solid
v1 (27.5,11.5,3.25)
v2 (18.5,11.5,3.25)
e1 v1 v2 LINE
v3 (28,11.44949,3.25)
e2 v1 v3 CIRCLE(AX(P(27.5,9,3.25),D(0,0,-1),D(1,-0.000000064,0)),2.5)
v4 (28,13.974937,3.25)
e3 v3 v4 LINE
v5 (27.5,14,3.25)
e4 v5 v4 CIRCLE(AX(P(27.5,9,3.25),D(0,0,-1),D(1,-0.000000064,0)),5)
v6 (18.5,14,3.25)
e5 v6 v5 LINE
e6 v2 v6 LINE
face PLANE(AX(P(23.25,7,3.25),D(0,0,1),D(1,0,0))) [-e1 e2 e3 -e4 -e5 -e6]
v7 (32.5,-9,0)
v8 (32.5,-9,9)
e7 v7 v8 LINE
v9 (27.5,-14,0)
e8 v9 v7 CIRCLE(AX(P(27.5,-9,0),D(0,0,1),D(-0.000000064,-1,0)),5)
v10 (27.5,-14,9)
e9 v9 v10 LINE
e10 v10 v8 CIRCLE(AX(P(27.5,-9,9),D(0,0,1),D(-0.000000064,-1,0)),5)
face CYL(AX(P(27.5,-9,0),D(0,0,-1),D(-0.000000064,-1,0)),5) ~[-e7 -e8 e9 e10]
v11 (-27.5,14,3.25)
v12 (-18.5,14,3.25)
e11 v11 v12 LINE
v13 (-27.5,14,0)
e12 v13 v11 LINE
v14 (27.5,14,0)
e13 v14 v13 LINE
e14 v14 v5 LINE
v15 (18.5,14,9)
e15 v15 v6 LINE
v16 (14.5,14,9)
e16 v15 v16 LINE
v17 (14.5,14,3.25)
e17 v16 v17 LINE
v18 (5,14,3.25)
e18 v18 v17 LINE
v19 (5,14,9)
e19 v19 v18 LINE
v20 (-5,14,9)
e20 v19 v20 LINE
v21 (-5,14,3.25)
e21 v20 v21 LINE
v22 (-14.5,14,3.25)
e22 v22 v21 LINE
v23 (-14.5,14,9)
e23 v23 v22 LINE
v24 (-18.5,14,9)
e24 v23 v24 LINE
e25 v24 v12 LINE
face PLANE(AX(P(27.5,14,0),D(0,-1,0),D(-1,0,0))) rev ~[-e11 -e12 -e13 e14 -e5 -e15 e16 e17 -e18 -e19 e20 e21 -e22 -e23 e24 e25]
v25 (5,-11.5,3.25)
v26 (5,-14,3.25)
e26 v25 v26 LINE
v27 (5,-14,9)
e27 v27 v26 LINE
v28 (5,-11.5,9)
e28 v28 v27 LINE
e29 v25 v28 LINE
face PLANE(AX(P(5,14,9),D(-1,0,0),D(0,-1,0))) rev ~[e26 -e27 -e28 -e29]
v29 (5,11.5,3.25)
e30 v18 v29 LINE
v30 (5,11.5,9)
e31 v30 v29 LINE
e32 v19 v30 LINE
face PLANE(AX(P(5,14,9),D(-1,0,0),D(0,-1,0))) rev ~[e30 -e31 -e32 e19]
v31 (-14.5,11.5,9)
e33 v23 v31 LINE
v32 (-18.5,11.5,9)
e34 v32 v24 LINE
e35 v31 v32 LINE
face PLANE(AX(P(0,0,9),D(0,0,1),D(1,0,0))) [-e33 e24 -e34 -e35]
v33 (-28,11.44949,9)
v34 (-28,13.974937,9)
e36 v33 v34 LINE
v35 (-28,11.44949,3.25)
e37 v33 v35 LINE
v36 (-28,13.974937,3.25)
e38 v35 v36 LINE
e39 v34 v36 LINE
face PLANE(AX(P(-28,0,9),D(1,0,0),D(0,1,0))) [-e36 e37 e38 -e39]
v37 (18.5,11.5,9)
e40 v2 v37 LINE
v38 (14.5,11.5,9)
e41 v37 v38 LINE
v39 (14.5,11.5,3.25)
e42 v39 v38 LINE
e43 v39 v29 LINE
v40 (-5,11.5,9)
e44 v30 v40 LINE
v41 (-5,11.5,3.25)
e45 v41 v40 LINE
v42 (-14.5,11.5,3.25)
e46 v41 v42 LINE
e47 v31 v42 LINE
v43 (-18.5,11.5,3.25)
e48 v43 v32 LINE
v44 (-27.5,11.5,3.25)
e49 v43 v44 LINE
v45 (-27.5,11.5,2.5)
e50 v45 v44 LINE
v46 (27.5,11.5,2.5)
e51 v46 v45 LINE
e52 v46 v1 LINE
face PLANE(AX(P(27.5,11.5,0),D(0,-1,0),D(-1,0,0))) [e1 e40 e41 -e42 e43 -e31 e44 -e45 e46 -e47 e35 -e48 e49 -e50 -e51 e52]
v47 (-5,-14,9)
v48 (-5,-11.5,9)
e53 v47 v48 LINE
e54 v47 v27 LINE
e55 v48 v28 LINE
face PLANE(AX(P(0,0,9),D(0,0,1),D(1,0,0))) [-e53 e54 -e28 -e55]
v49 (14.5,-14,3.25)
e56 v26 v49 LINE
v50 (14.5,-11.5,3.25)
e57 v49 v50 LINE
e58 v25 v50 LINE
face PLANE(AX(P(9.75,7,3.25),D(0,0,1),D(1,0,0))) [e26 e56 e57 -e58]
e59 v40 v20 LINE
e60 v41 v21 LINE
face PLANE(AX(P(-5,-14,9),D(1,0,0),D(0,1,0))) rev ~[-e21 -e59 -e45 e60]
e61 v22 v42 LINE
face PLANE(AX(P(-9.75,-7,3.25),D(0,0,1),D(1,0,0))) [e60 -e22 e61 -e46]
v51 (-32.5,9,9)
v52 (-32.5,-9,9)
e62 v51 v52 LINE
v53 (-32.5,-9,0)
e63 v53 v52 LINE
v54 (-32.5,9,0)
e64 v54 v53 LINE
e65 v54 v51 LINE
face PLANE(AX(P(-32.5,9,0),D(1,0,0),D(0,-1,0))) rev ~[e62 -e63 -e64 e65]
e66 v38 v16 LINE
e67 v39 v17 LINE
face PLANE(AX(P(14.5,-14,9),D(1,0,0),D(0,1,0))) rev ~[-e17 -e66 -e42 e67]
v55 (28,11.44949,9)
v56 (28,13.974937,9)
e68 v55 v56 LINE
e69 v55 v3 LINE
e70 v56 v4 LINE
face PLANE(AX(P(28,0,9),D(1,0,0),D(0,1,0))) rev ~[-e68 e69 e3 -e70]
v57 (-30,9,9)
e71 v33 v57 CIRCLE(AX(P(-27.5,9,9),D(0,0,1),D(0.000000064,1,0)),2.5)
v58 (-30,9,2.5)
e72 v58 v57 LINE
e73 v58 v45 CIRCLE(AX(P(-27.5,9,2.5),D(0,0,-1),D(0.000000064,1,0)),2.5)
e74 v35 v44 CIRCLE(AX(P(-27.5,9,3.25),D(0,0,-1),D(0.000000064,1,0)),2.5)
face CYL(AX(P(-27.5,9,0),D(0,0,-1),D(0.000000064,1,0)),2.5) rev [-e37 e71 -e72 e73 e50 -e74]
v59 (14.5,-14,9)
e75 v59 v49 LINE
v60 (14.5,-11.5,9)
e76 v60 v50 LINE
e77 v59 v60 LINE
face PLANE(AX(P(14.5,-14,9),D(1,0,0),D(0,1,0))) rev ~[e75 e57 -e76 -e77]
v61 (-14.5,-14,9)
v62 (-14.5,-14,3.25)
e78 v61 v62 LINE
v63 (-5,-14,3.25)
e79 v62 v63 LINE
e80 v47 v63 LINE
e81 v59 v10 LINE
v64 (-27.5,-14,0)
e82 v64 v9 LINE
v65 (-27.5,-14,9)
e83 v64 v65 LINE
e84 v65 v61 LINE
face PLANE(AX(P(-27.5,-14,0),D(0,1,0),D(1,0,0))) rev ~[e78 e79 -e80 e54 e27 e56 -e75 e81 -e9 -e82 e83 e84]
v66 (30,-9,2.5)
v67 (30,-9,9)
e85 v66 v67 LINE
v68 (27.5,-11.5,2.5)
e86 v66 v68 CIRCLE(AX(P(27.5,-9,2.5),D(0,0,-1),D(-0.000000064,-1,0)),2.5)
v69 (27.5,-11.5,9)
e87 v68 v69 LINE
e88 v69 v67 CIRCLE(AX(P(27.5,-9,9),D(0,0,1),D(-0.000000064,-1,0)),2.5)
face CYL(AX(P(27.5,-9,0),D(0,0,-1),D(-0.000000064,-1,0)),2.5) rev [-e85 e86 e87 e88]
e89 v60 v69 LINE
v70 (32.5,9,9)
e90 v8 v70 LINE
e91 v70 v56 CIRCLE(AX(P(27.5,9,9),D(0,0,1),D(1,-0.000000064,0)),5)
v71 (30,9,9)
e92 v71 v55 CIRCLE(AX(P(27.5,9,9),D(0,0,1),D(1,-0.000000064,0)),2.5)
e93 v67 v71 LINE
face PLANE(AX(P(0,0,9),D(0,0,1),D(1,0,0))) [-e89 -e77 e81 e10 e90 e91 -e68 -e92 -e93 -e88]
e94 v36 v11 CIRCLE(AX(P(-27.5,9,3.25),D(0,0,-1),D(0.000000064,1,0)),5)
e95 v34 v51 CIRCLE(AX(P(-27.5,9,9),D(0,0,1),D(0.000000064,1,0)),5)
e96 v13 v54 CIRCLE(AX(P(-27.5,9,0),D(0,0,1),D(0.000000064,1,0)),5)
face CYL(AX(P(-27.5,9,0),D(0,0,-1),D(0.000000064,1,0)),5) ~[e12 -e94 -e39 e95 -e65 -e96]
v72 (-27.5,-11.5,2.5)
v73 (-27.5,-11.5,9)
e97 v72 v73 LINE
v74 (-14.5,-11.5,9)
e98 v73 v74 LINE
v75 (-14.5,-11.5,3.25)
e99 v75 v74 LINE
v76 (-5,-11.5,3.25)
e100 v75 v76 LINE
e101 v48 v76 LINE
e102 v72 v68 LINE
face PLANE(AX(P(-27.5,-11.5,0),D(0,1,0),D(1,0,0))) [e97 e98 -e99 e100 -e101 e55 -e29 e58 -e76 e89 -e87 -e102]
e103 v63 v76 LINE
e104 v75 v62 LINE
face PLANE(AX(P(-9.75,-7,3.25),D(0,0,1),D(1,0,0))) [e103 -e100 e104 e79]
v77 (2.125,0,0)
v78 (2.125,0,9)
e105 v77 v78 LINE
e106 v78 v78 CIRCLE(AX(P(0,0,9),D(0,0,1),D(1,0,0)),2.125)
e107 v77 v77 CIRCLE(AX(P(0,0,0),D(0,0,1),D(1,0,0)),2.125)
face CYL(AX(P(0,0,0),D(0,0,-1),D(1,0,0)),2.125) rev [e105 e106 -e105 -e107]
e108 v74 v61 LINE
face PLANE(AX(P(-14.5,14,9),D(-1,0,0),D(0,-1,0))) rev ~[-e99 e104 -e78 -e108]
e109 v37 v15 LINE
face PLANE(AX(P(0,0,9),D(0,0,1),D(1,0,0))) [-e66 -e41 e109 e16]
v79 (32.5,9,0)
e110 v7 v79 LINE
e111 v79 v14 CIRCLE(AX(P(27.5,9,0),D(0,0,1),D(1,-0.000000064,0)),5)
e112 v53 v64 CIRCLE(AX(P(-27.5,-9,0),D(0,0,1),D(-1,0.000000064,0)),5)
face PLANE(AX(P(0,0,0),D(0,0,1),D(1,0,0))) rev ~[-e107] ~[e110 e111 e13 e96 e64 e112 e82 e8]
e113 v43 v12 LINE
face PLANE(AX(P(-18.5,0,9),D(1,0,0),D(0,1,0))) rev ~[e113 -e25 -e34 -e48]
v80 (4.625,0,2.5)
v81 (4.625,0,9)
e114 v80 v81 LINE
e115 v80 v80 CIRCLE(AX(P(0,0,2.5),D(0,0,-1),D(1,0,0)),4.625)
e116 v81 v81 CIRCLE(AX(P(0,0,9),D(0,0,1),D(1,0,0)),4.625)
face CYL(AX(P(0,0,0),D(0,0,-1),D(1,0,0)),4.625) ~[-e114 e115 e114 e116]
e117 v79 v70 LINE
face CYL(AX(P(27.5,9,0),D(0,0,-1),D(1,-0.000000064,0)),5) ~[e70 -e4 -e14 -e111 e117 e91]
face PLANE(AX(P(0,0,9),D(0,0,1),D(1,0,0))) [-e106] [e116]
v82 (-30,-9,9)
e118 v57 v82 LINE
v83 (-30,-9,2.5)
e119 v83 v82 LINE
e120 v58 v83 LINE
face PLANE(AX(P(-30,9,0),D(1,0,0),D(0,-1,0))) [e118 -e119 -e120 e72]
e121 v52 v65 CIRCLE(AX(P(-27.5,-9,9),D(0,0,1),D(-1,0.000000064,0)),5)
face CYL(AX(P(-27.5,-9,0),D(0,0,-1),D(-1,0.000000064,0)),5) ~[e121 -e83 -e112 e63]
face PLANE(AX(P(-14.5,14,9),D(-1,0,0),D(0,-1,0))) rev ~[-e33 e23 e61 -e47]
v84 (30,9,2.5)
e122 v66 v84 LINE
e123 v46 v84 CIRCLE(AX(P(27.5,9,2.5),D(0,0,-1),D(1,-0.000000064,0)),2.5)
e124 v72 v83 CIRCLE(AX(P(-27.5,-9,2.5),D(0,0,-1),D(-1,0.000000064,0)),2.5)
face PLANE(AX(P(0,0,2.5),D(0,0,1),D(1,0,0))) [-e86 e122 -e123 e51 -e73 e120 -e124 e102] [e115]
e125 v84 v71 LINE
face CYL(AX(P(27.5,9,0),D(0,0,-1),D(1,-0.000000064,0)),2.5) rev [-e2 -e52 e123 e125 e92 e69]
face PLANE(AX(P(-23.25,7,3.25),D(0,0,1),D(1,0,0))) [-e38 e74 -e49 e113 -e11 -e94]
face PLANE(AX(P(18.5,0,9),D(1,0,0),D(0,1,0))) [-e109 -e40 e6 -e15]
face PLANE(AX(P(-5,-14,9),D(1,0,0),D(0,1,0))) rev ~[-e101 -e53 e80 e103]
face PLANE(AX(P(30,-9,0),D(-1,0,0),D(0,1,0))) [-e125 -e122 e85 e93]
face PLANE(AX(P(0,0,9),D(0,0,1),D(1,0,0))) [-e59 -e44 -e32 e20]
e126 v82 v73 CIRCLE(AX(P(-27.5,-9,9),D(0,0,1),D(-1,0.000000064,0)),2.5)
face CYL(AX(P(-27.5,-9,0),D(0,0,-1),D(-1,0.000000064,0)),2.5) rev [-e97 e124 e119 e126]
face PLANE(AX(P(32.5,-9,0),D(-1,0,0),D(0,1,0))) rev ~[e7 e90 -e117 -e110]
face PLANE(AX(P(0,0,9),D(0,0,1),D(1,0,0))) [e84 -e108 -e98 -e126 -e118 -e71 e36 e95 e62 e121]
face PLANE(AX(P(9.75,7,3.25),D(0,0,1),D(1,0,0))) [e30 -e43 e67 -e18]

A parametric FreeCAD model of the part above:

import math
import FreeCAD as App
import Part
import Sketcher


def faces_at(feature, points):
    """Names of the faces that lie closest to the given points."""
    faces = feature.Shape.Faces
    near = lambda p: min(range(len(faces)), key=lambda i: faces[i].distToShape(Part.Vertex(*p))[0])
    return sorted({f"Face{near(p) + 1}" for p in points})


def add_polygon(sketch, points):
    """Adds a closed chain of lines whose ends are joined by coincident constraints."""
    first, n = sketch.GeometryCount, len(points)
    for a, b in zip(points, points[1:] + points[:1]):
        sketch.addGeometry(Part.LineSegment(App.Vector(*a, 0), App.Vector(*b, 0)), False)
    for i in range(n):
        sketch.addConstraint(Sketcher.Constraint("Coincident", first + i, 2, first + (i + 1) % n, 1))

doc = App.newDocument("Part")
body = doc.addObject("PartDesign::Body", "Body")

sketch1 = doc.addObject("Sketcher::SketchObject", "Sketch")
body.addObject(sketch1)
sketch1.AttachmentSupport = (doc.XY_Plane, [""])
sketch1.MapMode = "FlatFace"
sketch1.addGeometry(Part.ArcOfCircle(Part.Circle(App.Vector(27.5, 9, 0), App.Vector(0, 0, 1), 5), math.radians(0), math.radians(90)), False)
sketch1.addGeometry(Part.LineSegment(App.Vector(27.5, 14, 0), App.Vector(-27.5, 14, 0)), False)
sketch1.addGeometry(Part.ArcOfCircle(Part.Circle(App.Vector(-27.5, 9, 0), App.Vector(0, 0, 1), 5), math.radians(90), math.radians(180)), False)
sketch1.addGeometry(Part.LineSegment(App.Vector(-32.5, 9, 0), App.Vector(-32.5, -9, 0)), False)
sketch1.addGeometry(Part.ArcOfCircle(Part.Circle(App.Vector(-27.5, -9, 0), App.Vector(0, 0, 1), 5), math.radians(180), math.radians(270)), False)
sketch1.addGeometry(Part.LineSegment(App.Vector(-27.5, -14, 0), App.Vector(27.5, -14, 0)), False)
sketch1.addGeometry(Part.ArcOfCircle(Part.Circle(App.Vector(27.5, -9, 0), App.Vector(0, 0, 1), 5), math.radians(-90), math.radians(0)), False)
sketch1.addGeometry(Part.LineSegment(App.Vector(32.5, -9, 0), App.Vector(32.5, 9, 0)), False)
sketch1.addGeometry(Part.Circle(App.Vector(0, 0, 0), App.Vector(0, 0, 1), 2.1), False)
sketch1.addConstraint(Sketcher.Constraint("Tangent", 0, 2, 1, 1))
sketch1.addConstraint(Sketcher.Constraint("Tangent", 1, 2, 2, 1))
sketch1.addConstraint(Sketcher.Constraint("Tangent", 2, 2, 3, 1))
sketch1.addConstraint(Sketcher.Constraint("Tangent", 3, 2, 4, 1))
sketch1.addConstraint(Sketcher.Constraint("Tangent", 4, 2, 5, 1))
sketch1.addConstraint(Sketcher.Constraint("Tangent", 5, 2, 6, 1))
sketch1.addConstraint(Sketcher.Constraint("Tangent", 6, 2, 7, 1))
sketch1.addConstraint(Sketcher.Constraint("Tangent", 7, 2, 0, 1))
sketch1.addConstraint(Sketcher.Constraint("Horizontal", 1))
sketch1.addConstraint(Sketcher.Constraint("Vertical", 3))
sketch1.addConstraint(Sketcher.Constraint("Horizontal", 5))
sketch1.addConstraint(Sketcher.Constraint("Vertical", 7))
sketch1.addConstraint(Sketcher.Constraint("Coincident", 8, 3, -1, 1))
sketch1.addConstraint(Sketcher.Constraint("Equal", 0, 2))
sketch1.addConstraint(Sketcher.Constraint("Equal", 2, 4))
sketch1.addConstraint(Sketcher.Constraint("Equal", 4, 6))
sketch1.addConstraint(Sketcher.Constraint("Symmetric", 0, 3, 4, 3, -1, 1))
sketch1.addConstraint(Sketcher.Constraint("Radius", 0, 5.0))
sketch1.addConstraint(Sketcher.Constraint("Diameter", 8, 4.25))
sketch1.addConstraint(Sketcher.Constraint("DistanceX", 1, 2, 1, 1, 55.0))
sketch1.addConstraint(Sketcher.Constraint("DistanceY", 3, 2, 3, 1, 18.0))
pad1 = doc.addObject("PartDesign::Pad", "Pad")
body.addObject(pad1)
pad1.Profile = sketch1
pad1.Length = 9
doc.recompute()

thickness = doc.addObject("PartDesign::Thickness", "Thickness")
body.addObject(thickness)
thickness.Base = (pad1, faces_at(pad1, [(-13, -5.6, 9)]))
thickness.Value = 2.5
thickness.Reversed = True
thickness.Join = "Arc"

sketch2 = doc.addObject("Sketcher::SketchObject", "Sketch001")
body.addObject(sketch2)
sketch2.AttachmentSupport = (doc.XY_Plane, [""])
sketch2.MapMode = "FlatFace"
sketch2.AttachmentOffset = App.Placement(App.Vector(0, 0, 9), App.Rotation())
add_polygon(sketch2, [(5, 14), (5, -14), (14, -14), (14, 14)])
add_polygon(sketch2, [(-14, -14), (-5, -14), (-5, 14), (-14, 14)])
add_polygon(sketch2, [(18, 14), (18, 0), (28, 0), (28, 14)])
add_polygon(sketch2, [(-28, 14), (-28, 0), (-18, 0), (-18, 14)])
sketch2.addConstraint(Sketcher.Constraint("Vertical", 0))
sketch2.addConstraint(Sketcher.Constraint("Horizontal", 1))
sketch2.addConstraint(Sketcher.Constraint("Vertical", 2))
sketch2.addConstraint(Sketcher.Constraint("Horizontal", 3))
sketch2.addConstraint(Sketcher.Constraint("Horizontal", 4))
sketch2.addConstraint(Sketcher.Constraint("Vertical", 5))
sketch2.addConstraint(Sketcher.Constraint("Horizontal", 6))
sketch2.addConstraint(Sketcher.Constraint("Vertical", 7))
sketch2.addConstraint(Sketcher.Constraint("Vertical", 8))
sketch2.addConstraint(Sketcher.Constraint("Horizontal", 9))
sketch2.addConstraint(Sketcher.Constraint("Vertical", 10))
sketch2.addConstraint(Sketcher.Constraint("Horizontal", 11))
sketch2.addConstraint(Sketcher.Constraint("Vertical", 12))
sketch2.addConstraint(Sketcher.Constraint("Horizontal", 13))
sketch2.addConstraint(Sketcher.Constraint("Vertical", 14))
sketch2.addConstraint(Sketcher.Constraint("Horizontal", 15))
sketch2.addConstraint(Sketcher.Constraint("Symmetric", 3, 2, 4, 2, -1, 1))
sketch2.addConstraint(Sketcher.Constraint("Symmetric", 1, 2, 6, 2, -1, 1))
sketch2.addConstraint(Sketcher.Constraint("Symmetric", 9, 2, 12, 2, -1, 1))
sketch2.addConstraint(Sketcher.Constraint("Symmetric", 8, 2, 13, 2, -2))
sketch2.addConstraint(Sketcher.Constraint("Horizontal", 1, 2, 4, 2))
sketch2.addConstraint(Sketcher.Constraint("Horizontal", 6, 2, 10, 2))
sketch2.addConstraint(Sketcher.Constraint("Horizontal", 11, 2, 14, 2))
sketch2.addConstraint(Sketcher.Constraint("Equal", 6, 9))
sketch2.addConstraint(Sketcher.Constraint("DistanceY", 0, 2, 0, 1, 28.0))
sketch2.addConstraint(Sketcher.Constraint("DistanceX", 1, 1, 1, 2, 9.5))
sketch2.addConstraint(Sketcher.Constraint("DistanceX", -1, 1, 0, 2, 5.0))
sketch2.addConstraint(Sketcher.Constraint("DistanceX", -1, 1, 9, 2, 28.0))
pocket1 = doc.addObject("PartDesign::Pocket", "Pocket")
body.addObject(pocket1)
pocket1.Profile = sketch2
pocket1.Length = 5.75

doc.recompute()
